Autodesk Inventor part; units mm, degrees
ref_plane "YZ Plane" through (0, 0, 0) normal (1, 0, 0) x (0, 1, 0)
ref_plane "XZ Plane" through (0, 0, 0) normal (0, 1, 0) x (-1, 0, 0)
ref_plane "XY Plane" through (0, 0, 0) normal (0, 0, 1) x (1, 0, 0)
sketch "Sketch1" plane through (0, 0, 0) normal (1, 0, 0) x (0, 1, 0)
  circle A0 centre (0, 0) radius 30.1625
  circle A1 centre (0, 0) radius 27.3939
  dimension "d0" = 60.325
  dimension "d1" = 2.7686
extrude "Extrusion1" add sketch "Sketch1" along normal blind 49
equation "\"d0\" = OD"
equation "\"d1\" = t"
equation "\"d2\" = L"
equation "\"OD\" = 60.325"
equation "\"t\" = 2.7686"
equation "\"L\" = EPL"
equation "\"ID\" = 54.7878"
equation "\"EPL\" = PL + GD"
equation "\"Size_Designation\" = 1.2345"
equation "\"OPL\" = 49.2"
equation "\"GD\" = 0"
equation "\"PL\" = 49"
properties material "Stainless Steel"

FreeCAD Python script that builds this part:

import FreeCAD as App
import Part
import Sketcher
from FreeCAD import Vector
Q = App.Units.Quantity

doc = App.newDocument("Part")
body = doc.addObject("PartDesign::Body", "Body")

# Sketch on YZ plane
sketch1 = doc.addObject("Sketcher::SketchObject", "Sketch")
body.addObject(sketch1)
sketch1.AttachmentSupport = (doc.YZ_Plane, [""])
sketch1.MapMode = "FlatFace"
sketch1.addGeometry([
    Part.Circle(Vector(0, 0, 0), Vector(0, 0, 1), 30),
    Part.Circle(Vector(0, 0, 0), Vector(0, 0, 1), 27),
], False)
sketch1.addConstraint([
    Sketcher.Constraint("Coincident", 0, 3, -1, 1),
    Sketcher.Constraint("Coincident", 1, 3, -1, 1),
    Sketcher.Constraint("Diameter", 0, Q("2.375 in")),
    Sketcher.Constraint("Diameter", 1, Q("2.157 in")),
])
pad1 = doc.addObject("PartDesign::Pad", "Pad")
body.addObject(pad1)
pad1.Profile = sketch1
pad1.Length = 49

doc.recompute()
